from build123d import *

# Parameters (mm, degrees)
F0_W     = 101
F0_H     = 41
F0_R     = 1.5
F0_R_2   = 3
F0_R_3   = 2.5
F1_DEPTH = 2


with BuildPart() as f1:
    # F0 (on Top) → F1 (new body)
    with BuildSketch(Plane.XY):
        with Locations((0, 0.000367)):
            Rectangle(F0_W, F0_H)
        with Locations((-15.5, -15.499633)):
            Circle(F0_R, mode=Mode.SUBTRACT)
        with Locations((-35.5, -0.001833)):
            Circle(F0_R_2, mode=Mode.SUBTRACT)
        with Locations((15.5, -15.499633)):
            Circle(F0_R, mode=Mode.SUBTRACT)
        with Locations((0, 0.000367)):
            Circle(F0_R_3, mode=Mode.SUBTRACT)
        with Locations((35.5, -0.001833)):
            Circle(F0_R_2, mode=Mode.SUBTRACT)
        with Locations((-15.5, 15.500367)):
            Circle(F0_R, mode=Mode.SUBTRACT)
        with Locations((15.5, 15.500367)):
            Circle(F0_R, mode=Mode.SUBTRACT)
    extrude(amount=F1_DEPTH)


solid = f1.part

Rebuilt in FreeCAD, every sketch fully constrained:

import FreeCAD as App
import Part
import Sketcher
from FreeCAD import Vector

doc = App.newDocument("Part")
body = doc.addObject("PartDesign::Body", "Body")

# Sketch on XY plane
sketch1 = body.newObject("Sketcher::SketchObject", "Sketch")
sketch1.AttachmentSupport = (doc.getObject("XY_Plane"), [""])
sketch1.MapMode = "FlatFace"
sketch1.addGeometry(Part.LineSegment(Vector(-50.5, 20.5, 0), Vector(-50.5, -20.5, 0)), False)
sketch1.addGeometry(Part.LineSegment(Vector(-50.5, -20.5, 0), Vector(50.5, -20.5, 0)), False)
sketch1.addGeometry(Part.LineSegment(Vector(50.5, -20.5, 0), Vector(50.5, 20.5, 0)), False)
sketch1.addGeometry(Part.LineSegment(Vector(50.5, 20.5, 0), Vector(-50.5, 20.5, 0)), False)
sketch1.addGeometry(Part.Circle(Vector(-15.5, -15.5, 0), Vector(0, 0, 1), 1.5), False)
sketch1.addGeometry(Part.Circle(Vector(-35.5, 0, 0), Vector(0, 0, 1), 3), False)
sketch1.addGeometry(Part.Circle(Vector(15.5, -15.5, 0), Vector(0, 0, 1), 1.5), False)
sketch1.addGeometry(Part.Circle(Vector(35.5, 0, 0), Vector(0, 0, 1), 3), False)
sketch1.addGeometry(Part.Circle(Vector(-15.5, 15.5, 0), Vector(0, 0, 1), 1.5), False)
sketch1.addGeometry(Part.Circle(Vector(0, 0, 0), Vector(0, 0, 1), 2.5), False)
sketch1.addGeometry(Part.Circle(Vector(15.5, 15.5, 0), Vector(0, 0, 1), 1.5), False)
sketch1.addConstraint(Sketcher.Constraint("Coincident", 0, 2, 1, 1))
sketch1.addConstraint(Sketcher.Constraint("Coincident", 1, 2, 2, 1))
sketch1.addConstraint(Sketcher.Constraint("Coincident", 2, 2, 3, 1))
sketch1.addConstraint(Sketcher.Constraint("Coincident", 3, 2, 0, 1))
sketch1.addConstraint(Sketcher.Constraint("Vertical", 0))
sketch1.addConstraint(Sketcher.Constraint("Horizontal", 1))
sketch1.addConstraint(Sketcher.Constraint("Vertical", 2))
sketch1.addConstraint(Sketcher.Constraint("Horizontal", 3))
sketch1.addConstraint(Sketcher.Constraint("Equal", 4, 6))
sketch1.addConstraint(Sketcher.Constraint("Equal", 5, 7))
sketch1.addConstraint(Sketcher.Constraint("Equal", 6, 8))
sketch1.addConstraint(Sketcher.Constraint("Equal", 8, 10))
sketch1.addConstraint(Sketcher.Constraint("Symmetric", 4, 3, 6, 3, -2))
sketch1.addConstraint(Sketcher.Constraint("Symmetric", 5, 3, 7, 3, -2))
sketch1.addConstraint(Sketcher.Constraint("Symmetric", 8, 3, 10, 3, -2))
sketch1.addConstraint(Sketcher.Constraint("PointOnObject", 9, 3, -2))
sketch1.addConstraint(Sketcher.Constraint("Vertical", 4, 3, 8, 3))
sketch1.addConstraint(Sketcher.Constraint("Diameter", 4, 3.0))
sketch1.addConstraint(Sketcher.Constraint("Diameter", 5, 6.0))
sketch1.addConstraint(Sketcher.Constraint("Diameter", 9, 5.0))
sketch1.addConstraint(Sketcher.Constraint("DistanceX", 1, 1, 1, 2, 101.0))
sketch1.addConstraint(Sketcher.Constraint("DistanceY", 0, 2, 0, 1, 41.0))
sketch1.addConstraint(Sketcher.Constraint("DistanceX", 5, 3, 4, 3, 20.0))
sketch1.addConstraint(Sketcher.Constraint("DistanceX", 4, 3, 6, 3, 31.0))
sketch1.addConstraint(Sketcher.Constraint("DistanceY", 4, 3, 8, 3, 31.0))
sketch1.addConstraint(Sketcher.Constraint("DistanceX", 0, 2, 5, 3, 15.0))
sketch1.addConstraint(Sketcher.Constraint("DistanceY", 0, 2, 4, 3, 5.0))
sketch1.addConstraint(Sketcher.Constraint("DistanceY", 4, 3, 9, 3, 15.5))
sketch1.addConstraint(Sketcher.Constraint("DistanceY", 4, 3, 5, 3, 15.4978))
sketch1.addConstraint(Sketcher.Constraint("DistanceY", 4, 3, -1, 1, 15.499633))
pad1 = body.newObject("PartDesign::Pad", "Pad")
pad1.Profile = sketch1
pad1.Length = 2

doc.recompute()
